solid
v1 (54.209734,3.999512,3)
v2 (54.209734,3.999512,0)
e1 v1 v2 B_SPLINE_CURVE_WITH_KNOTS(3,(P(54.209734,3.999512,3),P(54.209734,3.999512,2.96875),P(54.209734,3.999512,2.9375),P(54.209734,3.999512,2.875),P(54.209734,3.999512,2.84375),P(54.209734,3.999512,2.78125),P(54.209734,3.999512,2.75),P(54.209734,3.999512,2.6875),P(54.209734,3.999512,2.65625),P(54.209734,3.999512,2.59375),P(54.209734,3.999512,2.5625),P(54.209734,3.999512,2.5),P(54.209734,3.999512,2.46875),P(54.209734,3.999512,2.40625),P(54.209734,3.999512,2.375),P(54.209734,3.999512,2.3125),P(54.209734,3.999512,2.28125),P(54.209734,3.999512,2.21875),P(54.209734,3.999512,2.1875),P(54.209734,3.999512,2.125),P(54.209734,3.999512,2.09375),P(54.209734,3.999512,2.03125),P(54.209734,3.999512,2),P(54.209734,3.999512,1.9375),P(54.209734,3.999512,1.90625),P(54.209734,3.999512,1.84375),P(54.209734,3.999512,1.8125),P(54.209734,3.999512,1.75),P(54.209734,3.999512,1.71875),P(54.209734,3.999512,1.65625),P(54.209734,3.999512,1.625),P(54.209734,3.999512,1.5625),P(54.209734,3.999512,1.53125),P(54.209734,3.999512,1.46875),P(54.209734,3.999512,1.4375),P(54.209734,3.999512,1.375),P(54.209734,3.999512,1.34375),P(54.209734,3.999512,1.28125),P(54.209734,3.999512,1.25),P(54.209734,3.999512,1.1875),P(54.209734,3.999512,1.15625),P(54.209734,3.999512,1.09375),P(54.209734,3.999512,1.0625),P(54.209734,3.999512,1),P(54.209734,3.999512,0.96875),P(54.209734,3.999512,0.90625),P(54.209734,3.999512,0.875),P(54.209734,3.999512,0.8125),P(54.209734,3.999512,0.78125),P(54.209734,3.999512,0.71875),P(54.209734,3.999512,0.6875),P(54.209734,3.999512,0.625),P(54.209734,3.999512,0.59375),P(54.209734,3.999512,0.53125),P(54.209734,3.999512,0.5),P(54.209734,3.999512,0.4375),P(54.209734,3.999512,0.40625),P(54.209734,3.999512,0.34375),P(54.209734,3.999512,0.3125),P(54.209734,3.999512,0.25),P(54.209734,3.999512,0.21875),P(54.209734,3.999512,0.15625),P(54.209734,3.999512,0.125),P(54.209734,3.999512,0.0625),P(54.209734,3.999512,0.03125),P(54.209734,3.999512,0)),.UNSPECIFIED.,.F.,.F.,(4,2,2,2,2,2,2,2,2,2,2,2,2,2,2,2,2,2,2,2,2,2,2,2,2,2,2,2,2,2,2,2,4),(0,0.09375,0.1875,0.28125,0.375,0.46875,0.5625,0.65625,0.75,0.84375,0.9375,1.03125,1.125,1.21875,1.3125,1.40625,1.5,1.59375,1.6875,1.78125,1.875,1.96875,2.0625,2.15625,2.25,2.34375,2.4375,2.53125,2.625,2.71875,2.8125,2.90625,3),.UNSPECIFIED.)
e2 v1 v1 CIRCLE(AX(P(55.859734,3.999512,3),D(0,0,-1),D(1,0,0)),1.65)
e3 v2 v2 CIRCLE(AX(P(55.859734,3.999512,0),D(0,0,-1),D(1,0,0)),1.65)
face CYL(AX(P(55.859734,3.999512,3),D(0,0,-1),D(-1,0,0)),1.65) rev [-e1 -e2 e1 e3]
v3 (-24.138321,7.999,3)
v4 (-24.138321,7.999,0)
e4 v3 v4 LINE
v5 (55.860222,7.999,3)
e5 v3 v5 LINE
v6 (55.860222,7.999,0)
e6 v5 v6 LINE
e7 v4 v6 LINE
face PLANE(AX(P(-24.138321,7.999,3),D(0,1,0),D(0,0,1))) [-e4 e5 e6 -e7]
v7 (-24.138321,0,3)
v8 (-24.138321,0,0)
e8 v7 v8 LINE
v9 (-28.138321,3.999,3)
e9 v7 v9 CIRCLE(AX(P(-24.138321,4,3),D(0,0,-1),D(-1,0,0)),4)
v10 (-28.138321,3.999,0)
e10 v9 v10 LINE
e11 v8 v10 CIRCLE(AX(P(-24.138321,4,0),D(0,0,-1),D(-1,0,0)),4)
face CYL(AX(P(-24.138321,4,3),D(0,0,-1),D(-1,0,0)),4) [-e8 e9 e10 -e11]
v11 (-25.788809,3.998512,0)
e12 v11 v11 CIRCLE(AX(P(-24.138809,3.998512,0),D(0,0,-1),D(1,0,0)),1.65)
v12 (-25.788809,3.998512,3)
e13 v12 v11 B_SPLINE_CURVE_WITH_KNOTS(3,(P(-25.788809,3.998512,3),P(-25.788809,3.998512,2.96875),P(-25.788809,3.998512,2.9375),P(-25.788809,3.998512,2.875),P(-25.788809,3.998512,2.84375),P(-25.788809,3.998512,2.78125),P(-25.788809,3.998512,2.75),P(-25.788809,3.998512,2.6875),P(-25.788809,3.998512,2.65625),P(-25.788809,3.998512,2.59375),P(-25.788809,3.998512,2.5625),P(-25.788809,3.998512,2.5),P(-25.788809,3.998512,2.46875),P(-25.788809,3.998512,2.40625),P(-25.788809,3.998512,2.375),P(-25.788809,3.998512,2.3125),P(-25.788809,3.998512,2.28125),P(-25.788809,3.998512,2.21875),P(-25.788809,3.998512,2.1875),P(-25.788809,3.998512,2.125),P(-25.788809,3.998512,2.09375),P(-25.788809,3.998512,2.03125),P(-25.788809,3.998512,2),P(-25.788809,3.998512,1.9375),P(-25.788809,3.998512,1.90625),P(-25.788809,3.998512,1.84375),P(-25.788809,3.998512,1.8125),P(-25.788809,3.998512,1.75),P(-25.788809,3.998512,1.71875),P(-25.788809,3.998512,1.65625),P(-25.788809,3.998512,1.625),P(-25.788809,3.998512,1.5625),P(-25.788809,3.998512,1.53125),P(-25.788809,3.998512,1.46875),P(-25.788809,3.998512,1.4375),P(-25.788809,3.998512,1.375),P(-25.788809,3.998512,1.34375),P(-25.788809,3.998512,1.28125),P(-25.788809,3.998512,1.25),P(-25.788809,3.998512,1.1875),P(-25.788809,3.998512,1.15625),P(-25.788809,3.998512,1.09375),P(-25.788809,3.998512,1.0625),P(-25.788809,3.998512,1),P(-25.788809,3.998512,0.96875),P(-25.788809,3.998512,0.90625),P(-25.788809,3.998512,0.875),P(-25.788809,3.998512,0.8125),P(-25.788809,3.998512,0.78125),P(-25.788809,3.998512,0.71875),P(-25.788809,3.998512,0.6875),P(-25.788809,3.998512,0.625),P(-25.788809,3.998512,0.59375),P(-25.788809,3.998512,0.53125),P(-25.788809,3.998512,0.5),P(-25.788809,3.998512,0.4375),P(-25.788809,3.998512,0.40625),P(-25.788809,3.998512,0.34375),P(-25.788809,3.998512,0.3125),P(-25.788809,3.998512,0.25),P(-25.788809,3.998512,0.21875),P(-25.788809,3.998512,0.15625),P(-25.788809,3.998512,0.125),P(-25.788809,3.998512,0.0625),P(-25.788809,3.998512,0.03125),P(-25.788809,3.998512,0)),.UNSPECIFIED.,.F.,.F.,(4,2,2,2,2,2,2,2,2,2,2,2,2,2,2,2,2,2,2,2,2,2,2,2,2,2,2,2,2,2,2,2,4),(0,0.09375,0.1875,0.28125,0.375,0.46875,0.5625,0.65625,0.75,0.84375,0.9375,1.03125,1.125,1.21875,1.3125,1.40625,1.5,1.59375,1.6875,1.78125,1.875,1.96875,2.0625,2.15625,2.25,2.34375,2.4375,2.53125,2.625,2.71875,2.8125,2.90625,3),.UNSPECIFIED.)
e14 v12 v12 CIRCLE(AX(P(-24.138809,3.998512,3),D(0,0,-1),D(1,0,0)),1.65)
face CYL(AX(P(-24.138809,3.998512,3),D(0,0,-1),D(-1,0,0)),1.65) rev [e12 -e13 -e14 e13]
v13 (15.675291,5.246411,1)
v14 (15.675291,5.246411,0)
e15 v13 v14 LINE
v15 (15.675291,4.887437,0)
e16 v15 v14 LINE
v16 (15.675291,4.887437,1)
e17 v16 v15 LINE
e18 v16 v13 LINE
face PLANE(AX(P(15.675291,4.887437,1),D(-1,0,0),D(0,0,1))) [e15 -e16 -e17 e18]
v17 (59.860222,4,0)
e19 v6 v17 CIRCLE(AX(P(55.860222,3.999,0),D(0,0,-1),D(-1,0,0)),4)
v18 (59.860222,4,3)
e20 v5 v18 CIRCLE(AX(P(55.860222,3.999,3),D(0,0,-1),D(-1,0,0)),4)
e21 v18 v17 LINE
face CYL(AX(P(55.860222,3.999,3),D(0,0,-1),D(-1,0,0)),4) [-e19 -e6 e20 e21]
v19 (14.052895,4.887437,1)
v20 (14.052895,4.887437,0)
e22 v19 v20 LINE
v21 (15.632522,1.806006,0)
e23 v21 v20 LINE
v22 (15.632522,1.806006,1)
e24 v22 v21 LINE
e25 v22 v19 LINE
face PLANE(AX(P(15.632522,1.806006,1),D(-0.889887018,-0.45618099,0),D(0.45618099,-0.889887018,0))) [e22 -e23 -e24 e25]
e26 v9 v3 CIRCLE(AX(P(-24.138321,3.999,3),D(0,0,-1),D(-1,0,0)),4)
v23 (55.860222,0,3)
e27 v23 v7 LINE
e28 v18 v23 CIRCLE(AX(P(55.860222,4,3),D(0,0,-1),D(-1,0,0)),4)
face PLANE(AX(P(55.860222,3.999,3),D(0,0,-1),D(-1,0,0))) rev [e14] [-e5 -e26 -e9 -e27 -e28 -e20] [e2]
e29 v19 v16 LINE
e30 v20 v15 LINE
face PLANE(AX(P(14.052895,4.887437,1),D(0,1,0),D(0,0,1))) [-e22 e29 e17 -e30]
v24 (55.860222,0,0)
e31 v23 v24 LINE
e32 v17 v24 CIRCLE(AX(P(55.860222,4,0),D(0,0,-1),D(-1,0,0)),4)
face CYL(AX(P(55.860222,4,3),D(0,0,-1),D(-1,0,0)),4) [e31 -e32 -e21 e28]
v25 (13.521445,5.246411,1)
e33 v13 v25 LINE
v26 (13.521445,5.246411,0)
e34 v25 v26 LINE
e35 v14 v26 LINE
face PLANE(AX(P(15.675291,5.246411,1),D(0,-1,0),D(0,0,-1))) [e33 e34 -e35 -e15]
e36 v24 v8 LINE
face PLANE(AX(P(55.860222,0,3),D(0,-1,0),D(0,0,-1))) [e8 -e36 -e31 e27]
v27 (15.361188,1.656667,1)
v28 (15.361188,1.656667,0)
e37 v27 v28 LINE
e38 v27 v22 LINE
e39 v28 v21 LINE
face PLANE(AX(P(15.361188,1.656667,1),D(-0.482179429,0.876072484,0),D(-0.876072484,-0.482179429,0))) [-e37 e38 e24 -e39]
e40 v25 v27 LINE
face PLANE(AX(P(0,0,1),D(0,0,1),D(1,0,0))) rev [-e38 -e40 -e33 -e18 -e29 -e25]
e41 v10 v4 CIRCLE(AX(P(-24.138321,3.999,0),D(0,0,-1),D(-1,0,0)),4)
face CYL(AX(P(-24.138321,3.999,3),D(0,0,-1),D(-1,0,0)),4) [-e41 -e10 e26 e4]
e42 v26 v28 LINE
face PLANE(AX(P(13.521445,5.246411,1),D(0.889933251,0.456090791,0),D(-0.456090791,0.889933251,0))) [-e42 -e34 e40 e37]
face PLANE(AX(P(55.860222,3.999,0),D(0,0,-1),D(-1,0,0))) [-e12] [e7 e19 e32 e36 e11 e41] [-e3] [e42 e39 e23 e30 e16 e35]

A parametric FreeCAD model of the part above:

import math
import FreeCAD as App
import Part
import Sketcher

V = App.Vector


def add_polygon(sketch, points):
    """Adds a closed chain of lines whose ends are joined by coincident constraints."""
    first, n = sketch.GeometryCount, len(points)
    for a, b in zip(points, points[1:] + points[:1]):
        sketch.addGeometry(Part.LineSegment(App.Vector(*a, 0), App.Vector(*b, 0)), False)
    for i in range(n):
        sketch.addConstraint(Sketcher.Constraint("Coincident", first + i, 2, first + (i + 1) % n, 1))

doc = App.newDocument("Part")
params = doc.addObject("Spreadsheet::Sheet", "Params")
for row, (alias, value) in enumerate([
    ("sketch1_radius", "4 mm"),
    ("sketch1_diameter", "3.3 mm"),
    ("pad1_length", "3 mm"),
    ("pocket1_length", "1 mm"),
], start=1):
    params.set(f"A{row}", alias)
    params.set(f"B{row}", "=" + value)
    params.setAlias(f"B{row}", alias)

body = doc.addObject("PartDesign::Body", "Body")

# Sketch on XY plane
sketch1 = body.newObject("Sketcher::SketchObject", "Sketch")
sketch1.AttachmentSupport = (doc.getObject("XY_Plane"), [""])
sketch1.MapMode = "FlatFace"
sketch1.addGeometry([
    Part.LineSegment(V(55.9, 0, 0), V(-24.1, 0, 0)),  # 0
    Part.ArcOfCircle(Part.Circle(V(-24.1, 4, 0), V(0, 0, 1), 4), math.radians(-180), math.radians(-90)),  # 1
    Part.ArcOfCircle(Part.Circle(V(-24.1, 4, 0), V(0, 0, 1), 4), math.radians(90), math.radians(180)),  # 2
    Part.LineSegment(V(-24.1, 8, 0), V(55.9, 8, 0)),  # 3
    Part.ArcOfCircle(Part.Circle(V(55.9, 4, 0), V(0, 0, 1), 4), math.radians(0), math.radians(90)),  # 4
    Part.ArcOfCircle(Part.Circle(V(55.9, 4, 0), V(0, 0, 1), 4), math.radians(-90), math.radians(0)),  # 5
    Part.Circle(V(-24.1, 4, 0), V(0, 0, 1), 1.6),  # 6
    Part.Circle(V(55.9, 4, 0), V(0, 0, 1), 1.6),  # 7
], False)
sketch1.addConstraint([
    Sketcher.Constraint("Tangent", 0, 2, 1, 2),
    Sketcher.Constraint("Coincident", 1, 1, 2, 2),
    Sketcher.Constraint("Tangent", 2, 1, 3, 1),
    Sketcher.Constraint("Tangent", 3, 2, 4, 2),
    Sketcher.Constraint("Coincident", 4, 1, 5, 2),
    Sketcher.Constraint("Tangent", 5, 1, 0, 1),
    Sketcher.Constraint("Horizontal", 0),
    Sketcher.Constraint("Horizontal", 3),
    Sketcher.Constraint("Equal", 1, 2),
    Sketcher.Constraint("Equal", 2, 4),
    Sketcher.Constraint("Equal", 4, 5),
    Sketcher.Constraint("Equal", 6, 7),
    Sketcher.Constraint("PointOnObject", 0, 2, -1),
    Sketcher.Constraint("Horizontal", 4, 3, 1, 1),
    Sketcher.Constraint("Horizontal", 5, 3, 4, 1),
    Sketcher.Constraint("Radius", 1, 4.0),
    Sketcher.Constraint("Diameter", 6, 3.3),
    Sketcher.Constraint("DistanceY", -1, 1, 2, 3, 3.999),
    Sketcher.Constraint("DistanceY", 6, 3, 7, 3, 0.001),
    Sketcher.Constraint("DistanceX", 0, 2, 0, 1, 79.998543),
    Sketcher.Constraint("DistanceX", 1, 3, -1, 1, 24.138321),
    Sketcher.Constraint("DistanceX", 6, 3, -1, 1, 24.138809),
    Sketcher.Constraint("DistanceY", -1, 1, 6, 3, 3.998512),
    Sketcher.Constraint("DistanceX", 7, 3, 5, 3, 0.000488),
])
sketch1.setExpression("Constraints[15]", "Params.sketch1_radius")
sketch1.setExpression("Constraints[16]", "Params.sketch1_diameter")
pad1 = body.newObject("PartDesign::Pad", "Pad")
pad1.Profile = sketch1
pad1.setExpression("Length", "Params.pad1_length")

# Sketch on XY plane
sketch2 = body.newObject("Sketcher::SketchObject", "Sketch001")
sketch2.AttachmentSupport = (doc.getObject("XY_Plane"), [""])
sketch2.MapMode = "FlatFace"
add_polygon(sketch2, [(13.52, 5.25), (15.68, 5.25), (15.68, 4.89), (14.05, 4.89), (15.63, 1.81), (15.36, 1.66)])  # lines 0-5
sketch2.addConstraint([
    Sketcher.Constraint("Horizontal", 0),
    Sketcher.Constraint("Vertical", 1),
    Sketcher.Constraint("Horizontal", 2),
    Sketcher.Constraint("Distance", 3, 3.462721),
    Sketcher.Constraint("DistanceX", 0, 1, 0, 2, 2.153846),
    Sketcher.Constraint("DistanceX", 2, 2, 2, 1, 1.622396),
    Sketcher.Constraint("DistanceY", 1, 2, 1, 1, 0.358974),
    Sketcher.Constraint("DistanceX", -1, 1, 0, 2, 15.675291),
    Sketcher.Constraint("DistanceY", -1, 1, 0, 2, 5.246411),
    Sketcher.Constraint("DistanceX", -1, 1, 4, 2, 15.361188),
    Sketcher.Constraint("DistanceX", 3, 2, 1, 2, 0.042768),
    Sketcher.Constraint("DistanceY", 4, 2, 3, 2, 0.149339),
])
pocket1 = body.newObject("PartDesign::Pocket", "Pocket")
pocket1.Profile = sketch2
pocket1.setExpression("Length", "Params.pocket1_length")
pocket1.Reversed = True

doc.recompute()
